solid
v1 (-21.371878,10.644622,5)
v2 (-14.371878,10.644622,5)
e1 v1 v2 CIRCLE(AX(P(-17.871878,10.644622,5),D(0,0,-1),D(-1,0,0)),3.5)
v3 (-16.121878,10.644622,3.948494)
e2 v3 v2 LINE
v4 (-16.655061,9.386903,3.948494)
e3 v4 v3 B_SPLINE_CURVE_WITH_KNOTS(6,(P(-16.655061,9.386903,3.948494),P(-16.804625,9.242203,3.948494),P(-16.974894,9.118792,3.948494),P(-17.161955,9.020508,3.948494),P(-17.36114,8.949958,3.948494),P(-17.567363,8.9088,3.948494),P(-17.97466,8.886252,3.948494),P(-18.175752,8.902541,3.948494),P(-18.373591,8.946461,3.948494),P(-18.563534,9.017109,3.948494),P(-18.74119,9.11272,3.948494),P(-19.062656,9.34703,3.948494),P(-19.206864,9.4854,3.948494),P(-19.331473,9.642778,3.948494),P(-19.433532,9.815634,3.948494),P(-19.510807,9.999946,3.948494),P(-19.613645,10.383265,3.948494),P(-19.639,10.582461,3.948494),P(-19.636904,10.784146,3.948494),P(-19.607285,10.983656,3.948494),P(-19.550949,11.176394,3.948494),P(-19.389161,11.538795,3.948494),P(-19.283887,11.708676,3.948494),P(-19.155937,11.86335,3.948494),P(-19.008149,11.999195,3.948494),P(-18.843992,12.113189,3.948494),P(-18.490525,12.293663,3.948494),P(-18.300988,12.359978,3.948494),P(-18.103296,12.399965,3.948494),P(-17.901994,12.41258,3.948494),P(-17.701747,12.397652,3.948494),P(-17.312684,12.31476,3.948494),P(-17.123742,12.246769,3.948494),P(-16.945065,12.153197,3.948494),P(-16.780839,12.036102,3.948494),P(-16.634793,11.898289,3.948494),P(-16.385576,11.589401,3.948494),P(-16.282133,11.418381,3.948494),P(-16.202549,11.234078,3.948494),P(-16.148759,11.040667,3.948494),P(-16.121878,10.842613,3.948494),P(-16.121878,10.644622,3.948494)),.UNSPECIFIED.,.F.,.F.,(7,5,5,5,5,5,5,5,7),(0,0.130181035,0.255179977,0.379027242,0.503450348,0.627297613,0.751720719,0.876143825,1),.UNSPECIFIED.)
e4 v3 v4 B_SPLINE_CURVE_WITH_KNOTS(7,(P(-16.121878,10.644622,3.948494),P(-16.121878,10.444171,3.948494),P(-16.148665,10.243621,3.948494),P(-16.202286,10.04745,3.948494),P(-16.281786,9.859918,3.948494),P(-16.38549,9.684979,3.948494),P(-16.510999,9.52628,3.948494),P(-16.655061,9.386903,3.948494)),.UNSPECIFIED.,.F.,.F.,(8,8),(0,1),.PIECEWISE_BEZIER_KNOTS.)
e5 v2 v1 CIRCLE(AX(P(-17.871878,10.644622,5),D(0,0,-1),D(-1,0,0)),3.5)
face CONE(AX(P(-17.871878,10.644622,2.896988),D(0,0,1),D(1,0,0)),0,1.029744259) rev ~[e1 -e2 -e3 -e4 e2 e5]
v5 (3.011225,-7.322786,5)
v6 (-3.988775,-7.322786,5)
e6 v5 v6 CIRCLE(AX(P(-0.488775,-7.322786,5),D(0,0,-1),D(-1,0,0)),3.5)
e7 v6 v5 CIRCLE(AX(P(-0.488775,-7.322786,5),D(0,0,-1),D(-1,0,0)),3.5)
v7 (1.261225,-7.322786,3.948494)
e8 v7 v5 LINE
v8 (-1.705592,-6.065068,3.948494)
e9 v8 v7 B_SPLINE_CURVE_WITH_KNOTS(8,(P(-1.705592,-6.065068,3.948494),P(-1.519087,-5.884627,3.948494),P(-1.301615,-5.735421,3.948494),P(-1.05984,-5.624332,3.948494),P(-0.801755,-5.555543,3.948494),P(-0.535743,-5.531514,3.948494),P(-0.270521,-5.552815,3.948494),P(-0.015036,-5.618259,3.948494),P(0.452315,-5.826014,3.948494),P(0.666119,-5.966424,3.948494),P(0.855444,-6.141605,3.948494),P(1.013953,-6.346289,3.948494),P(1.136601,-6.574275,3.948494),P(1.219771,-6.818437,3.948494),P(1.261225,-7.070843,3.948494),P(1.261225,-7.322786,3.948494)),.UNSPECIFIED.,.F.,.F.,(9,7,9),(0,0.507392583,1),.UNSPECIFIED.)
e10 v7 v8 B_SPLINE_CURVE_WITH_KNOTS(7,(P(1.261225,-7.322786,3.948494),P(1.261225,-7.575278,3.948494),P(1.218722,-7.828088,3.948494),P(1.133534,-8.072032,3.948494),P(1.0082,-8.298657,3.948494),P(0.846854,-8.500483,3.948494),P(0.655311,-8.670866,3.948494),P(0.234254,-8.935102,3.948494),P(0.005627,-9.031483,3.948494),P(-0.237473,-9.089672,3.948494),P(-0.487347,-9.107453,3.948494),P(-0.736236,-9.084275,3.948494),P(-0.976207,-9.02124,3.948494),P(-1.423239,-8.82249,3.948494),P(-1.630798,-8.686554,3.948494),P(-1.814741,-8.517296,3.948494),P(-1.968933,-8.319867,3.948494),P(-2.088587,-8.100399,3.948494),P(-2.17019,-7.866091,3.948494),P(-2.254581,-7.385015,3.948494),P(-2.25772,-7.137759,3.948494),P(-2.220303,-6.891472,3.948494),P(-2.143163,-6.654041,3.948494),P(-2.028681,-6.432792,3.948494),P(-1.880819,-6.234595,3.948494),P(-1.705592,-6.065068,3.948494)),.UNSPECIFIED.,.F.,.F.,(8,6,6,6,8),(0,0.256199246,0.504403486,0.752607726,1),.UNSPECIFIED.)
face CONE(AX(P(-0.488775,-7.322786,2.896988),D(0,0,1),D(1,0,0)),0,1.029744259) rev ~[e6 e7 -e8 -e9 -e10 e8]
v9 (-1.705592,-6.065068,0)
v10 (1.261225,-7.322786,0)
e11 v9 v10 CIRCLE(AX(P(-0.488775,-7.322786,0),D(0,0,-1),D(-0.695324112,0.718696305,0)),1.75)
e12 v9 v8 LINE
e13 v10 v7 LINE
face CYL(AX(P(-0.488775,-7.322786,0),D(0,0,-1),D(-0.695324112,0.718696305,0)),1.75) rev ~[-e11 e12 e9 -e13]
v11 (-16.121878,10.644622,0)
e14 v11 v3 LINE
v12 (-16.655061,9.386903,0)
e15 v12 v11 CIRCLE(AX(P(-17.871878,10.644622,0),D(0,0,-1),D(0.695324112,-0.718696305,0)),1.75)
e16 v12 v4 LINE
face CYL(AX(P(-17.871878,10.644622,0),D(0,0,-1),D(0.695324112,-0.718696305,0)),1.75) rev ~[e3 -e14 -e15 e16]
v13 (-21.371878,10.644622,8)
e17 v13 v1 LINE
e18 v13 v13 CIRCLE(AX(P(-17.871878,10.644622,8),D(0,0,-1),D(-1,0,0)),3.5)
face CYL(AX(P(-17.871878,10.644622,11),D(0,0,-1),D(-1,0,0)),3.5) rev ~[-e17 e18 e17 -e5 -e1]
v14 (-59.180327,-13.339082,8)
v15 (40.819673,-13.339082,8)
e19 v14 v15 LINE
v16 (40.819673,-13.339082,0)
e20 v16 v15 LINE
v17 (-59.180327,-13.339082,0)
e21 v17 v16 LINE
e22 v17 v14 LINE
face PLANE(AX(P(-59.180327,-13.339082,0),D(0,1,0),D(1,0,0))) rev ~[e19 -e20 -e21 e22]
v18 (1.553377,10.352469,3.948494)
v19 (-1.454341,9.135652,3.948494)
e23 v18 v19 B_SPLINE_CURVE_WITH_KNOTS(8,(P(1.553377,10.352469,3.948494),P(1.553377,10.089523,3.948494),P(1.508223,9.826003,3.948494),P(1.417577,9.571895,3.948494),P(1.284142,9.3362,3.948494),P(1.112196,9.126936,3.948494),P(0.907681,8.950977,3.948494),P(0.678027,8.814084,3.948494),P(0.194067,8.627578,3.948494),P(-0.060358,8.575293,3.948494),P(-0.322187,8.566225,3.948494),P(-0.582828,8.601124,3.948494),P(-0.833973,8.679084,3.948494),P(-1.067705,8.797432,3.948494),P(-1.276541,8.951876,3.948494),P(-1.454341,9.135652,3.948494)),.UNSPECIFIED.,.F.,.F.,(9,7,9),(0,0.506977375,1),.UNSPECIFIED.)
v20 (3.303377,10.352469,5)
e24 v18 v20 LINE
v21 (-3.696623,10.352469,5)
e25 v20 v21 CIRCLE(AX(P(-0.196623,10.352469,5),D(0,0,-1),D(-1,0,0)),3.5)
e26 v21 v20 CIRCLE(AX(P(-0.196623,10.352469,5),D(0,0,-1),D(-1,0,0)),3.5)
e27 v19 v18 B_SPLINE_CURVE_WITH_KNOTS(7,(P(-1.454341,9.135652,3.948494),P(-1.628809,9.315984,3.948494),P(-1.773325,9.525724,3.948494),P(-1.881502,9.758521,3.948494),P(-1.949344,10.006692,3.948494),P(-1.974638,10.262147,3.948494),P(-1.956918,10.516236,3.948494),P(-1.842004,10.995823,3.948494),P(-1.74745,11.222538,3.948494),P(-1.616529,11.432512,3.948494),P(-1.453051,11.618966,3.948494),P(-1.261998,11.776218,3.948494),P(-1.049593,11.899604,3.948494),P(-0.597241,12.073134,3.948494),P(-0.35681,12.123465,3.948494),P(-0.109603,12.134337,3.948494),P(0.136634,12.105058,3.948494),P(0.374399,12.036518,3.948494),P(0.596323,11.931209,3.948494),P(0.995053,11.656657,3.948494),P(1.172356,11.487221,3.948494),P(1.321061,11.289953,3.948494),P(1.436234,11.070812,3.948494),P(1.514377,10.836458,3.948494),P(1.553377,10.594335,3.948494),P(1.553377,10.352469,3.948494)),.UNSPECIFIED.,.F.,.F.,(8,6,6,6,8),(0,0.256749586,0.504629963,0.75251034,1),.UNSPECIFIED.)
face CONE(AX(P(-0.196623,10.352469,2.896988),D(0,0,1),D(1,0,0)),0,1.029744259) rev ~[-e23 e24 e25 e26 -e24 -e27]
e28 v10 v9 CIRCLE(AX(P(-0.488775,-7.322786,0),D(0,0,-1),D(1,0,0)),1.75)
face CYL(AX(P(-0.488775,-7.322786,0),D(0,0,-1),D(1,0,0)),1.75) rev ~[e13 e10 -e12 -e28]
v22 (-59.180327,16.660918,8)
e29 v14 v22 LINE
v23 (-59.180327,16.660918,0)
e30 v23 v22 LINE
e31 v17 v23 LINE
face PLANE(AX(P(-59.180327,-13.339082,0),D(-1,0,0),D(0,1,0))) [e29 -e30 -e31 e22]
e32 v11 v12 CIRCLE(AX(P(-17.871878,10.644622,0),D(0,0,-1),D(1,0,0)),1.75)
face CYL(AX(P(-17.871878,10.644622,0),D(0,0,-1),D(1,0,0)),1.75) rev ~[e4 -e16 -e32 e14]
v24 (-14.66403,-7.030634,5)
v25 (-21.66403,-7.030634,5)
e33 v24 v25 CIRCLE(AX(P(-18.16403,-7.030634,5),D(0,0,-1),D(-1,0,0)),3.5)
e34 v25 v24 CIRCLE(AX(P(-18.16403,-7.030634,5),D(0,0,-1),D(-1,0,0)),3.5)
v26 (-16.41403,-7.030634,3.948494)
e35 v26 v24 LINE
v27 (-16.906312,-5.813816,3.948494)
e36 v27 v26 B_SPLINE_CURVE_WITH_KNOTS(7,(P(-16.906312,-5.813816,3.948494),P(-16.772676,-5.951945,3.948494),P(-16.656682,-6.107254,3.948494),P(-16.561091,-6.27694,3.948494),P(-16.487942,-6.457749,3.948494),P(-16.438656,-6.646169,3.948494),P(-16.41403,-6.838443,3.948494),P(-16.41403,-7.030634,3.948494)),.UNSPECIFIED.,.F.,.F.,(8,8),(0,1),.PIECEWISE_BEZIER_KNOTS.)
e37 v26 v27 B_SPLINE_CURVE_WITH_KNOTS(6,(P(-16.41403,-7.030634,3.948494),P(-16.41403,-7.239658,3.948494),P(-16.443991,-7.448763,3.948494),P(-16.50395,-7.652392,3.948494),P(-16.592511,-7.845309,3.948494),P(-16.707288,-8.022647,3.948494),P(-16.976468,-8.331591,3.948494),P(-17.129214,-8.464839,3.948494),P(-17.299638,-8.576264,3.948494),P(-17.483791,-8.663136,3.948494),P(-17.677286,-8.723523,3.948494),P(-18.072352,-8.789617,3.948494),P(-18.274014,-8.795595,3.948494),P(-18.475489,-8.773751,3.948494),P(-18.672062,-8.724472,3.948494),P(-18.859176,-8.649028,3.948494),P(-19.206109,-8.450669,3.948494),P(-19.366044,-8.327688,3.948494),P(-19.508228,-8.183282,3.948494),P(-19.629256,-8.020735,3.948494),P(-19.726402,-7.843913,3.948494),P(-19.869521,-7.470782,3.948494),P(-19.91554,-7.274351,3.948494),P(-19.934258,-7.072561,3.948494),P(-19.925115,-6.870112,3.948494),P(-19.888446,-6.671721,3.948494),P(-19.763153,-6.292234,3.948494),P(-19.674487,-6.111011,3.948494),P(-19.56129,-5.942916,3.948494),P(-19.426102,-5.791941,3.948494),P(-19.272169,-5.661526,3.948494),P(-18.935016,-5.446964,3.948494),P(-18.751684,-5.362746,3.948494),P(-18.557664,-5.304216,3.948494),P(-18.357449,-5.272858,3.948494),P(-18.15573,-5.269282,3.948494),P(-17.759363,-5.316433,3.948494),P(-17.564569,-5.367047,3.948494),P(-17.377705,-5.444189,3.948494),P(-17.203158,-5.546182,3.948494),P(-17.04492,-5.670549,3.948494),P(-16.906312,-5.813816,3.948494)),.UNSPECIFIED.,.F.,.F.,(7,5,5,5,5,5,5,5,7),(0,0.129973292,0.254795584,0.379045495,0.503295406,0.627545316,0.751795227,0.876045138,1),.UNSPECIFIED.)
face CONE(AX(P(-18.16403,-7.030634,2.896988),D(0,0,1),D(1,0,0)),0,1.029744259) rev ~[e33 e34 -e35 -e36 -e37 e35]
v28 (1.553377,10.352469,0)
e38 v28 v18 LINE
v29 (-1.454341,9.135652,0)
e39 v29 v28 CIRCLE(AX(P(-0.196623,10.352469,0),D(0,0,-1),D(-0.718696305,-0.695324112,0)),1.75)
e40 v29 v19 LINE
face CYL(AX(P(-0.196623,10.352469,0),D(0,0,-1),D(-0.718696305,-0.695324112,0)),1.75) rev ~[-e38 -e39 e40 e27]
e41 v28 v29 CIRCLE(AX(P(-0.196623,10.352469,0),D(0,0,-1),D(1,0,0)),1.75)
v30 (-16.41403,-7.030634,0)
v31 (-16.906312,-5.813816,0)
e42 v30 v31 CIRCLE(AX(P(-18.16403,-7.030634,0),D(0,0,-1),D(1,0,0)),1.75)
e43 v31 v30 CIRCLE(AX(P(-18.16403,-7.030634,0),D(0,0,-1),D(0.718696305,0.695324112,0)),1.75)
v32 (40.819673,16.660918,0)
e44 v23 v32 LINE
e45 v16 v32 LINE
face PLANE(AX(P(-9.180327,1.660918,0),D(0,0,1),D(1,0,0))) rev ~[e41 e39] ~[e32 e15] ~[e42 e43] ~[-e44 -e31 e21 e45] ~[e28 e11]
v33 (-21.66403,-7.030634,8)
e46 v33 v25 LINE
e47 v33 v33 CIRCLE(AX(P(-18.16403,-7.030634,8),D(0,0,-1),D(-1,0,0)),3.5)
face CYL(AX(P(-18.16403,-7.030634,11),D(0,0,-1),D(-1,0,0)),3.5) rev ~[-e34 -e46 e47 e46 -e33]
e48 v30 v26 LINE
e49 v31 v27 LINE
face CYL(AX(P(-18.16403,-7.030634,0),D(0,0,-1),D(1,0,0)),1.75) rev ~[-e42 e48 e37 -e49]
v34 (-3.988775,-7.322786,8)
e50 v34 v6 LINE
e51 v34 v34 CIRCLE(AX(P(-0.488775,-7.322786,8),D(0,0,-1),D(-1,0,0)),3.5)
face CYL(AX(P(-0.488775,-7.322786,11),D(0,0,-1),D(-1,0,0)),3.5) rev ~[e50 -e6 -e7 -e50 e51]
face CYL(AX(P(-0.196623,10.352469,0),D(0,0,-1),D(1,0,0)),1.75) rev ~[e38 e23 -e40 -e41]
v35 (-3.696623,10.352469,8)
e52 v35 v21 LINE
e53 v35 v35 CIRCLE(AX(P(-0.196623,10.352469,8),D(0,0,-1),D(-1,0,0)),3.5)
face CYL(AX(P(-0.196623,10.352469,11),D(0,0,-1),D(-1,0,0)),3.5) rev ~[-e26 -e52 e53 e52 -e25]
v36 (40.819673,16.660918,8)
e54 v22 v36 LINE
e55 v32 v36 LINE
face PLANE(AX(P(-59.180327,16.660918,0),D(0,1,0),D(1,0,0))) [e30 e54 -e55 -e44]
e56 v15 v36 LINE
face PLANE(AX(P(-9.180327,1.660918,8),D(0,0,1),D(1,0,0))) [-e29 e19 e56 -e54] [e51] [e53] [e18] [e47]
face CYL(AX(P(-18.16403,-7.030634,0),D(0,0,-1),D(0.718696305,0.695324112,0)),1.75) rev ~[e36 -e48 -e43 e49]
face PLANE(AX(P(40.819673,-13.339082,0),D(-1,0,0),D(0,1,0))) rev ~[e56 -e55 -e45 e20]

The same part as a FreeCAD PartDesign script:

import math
import FreeCAD as App
import Part
import Sketcher
from FreeCAD import Vector
Q = App.Units.Quantity


def add_polygon(sketch, points):
    """Adds a closed chain of lines whose ends are joined by coincident constraints."""
    first, n = sketch.GeometryCount, len(points)
    for a, b in zip(points, points[1:] + points[:1]):
        sketch.addGeometry(Part.LineSegment(App.Vector(*a, 0), App.Vector(*b, 0)), False)
    for i in range(n):
        sketch.addConstraint(Sketcher.Constraint("Coincident", first + i, 2, first + (i + 1) % n, 1))

doc = App.newDocument("Part")
body = doc.addObject("PartDesign::Body", "Body")

# Sketch on XY plane
sketch1 = doc.addObject("Sketcher::SketchObject", "Sketch")
body.addObject(sketch1)
sketch1.AttachmentSupport = (doc.XY_Plane, [""])
sketch1.MapMode = "FlatFace"
add_polygon(sketch1, [(-59.2, 16.7), (-59.2, -13.3), (40.8, -13.3), (40.8, 16.7)])  # lines 0-3
sketch1.addGeometry(Part.ArcOfCircle(Part.Circle(Vector(-18.2, -7, 0), Vector(0, 0, 1), 1.8), math.radians(0), math.radians(44)), False)  # 4
sketch1.addGeometry(Part.ArcOfCircle(Part.Circle(Vector(-18.2, -7, 0), Vector(0, 0, 1), 1.8), math.radians(44), math.radians(360)), False)  # 5
sketch1.addGeometry(Part.ArcOfCircle(Part.Circle(Vector(-0.5, -7.3, 0), Vector(0, 0, 1), 1.8), math.radians(0), math.radians(134)), False)  # 6
sketch1.addGeometry(Part.ArcOfCircle(Part.Circle(Vector(-0.5, -7.3, 0), Vector(0, 0, 1), 1.8), math.radians(134), math.radians(360)), False)  # 7
sketch1.addGeometry(Part.ArcOfCircle(Part.Circle(Vector(-17.9, 10.6, 0), Vector(0, 0, 1), 1.7), math.radians(-46), math.radians(0)), False)  # 8
sketch1.addGeometry(Part.ArcOfCircle(Part.Circle(Vector(-17.9, 10.6, 0), Vector(0, 0, 1), 1.8), math.radians(0), math.radians(314)), False)  # 9
sketch1.addGeometry(Part.ArcOfCircle(Part.Circle(Vector(-0.2, 10.4, 0), Vector(0, 0, 1), 1.8), math.radians(0), math.radians(224)), False)  # 10
sketch1.addGeometry(Part.ArcOfCircle(Part.Circle(Vector(-0.2, 10.4, 0), Vector(0, 0, 1), 1.8), math.radians(-136), math.radians(0)), False)  # 11
sketch1.addConstraint(Sketcher.Constraint("Tangent", 4, 1, 5, 2))
sketch1.addConstraint(Sketcher.Constraint("Coincident", 5, 1, 4, 2))
sketch1.addConstraint(Sketcher.Constraint("Tangent", 6, 1, 7, 2))
sketch1.addConstraint(Sketcher.Constraint("Coincident", 7, 1, 6, 2))
sketch1.addConstraint(Sketcher.Constraint("Tangent", 8, 1, 9, 2))
sketch1.addConstraint(Sketcher.Constraint("Coincident", 9, 1, 8, 2))
sketch1.addConstraint(Sketcher.Constraint("Tangent", 10, 1, 11, 2))
sketch1.addConstraint(Sketcher.Constraint("Coincident", 11, 1, 10, 2))
sketch1.addConstraint(Sketcher.Constraint("Vertical", 0))
sketch1.addConstraint(Sketcher.Constraint("Horizontal", 1))
sketch1.addConstraint(Sketcher.Constraint("Vertical", 2))
sketch1.addConstraint(Sketcher.Constraint("Horizontal", 3))
sketch1.addConstraint(Sketcher.Constraint("Equal", 5, 6))
sketch1.addConstraint(Sketcher.Constraint("Equal", 7, 8))
sketch1.addConstraint(Sketcher.Constraint("Equal", 9, 10))
sketch1.addConstraint(Sketcher.Constraint("Horizontal", 5, 3, 4, 1))
sketch1.addConstraint(Sketcher.Constraint("Horizontal", 7, 3, 6, 1))
sketch1.addConstraint(Sketcher.Constraint("Horizontal", 8, 3, 9, 1))
sketch1.addConstraint(Sketcher.Constraint("Horizontal", 11, 3, 10, 1))
sketch1.addConstraint(Sketcher.Constraint("DistanceX", 1, 1, 1, 2, Q("100 mm")))
sketch1.addConstraint(Sketcher.Constraint("DistanceY", 0, 2, 0, 1, Q("30 mm")))
sketch1.addConstraint(Sketcher.Constraint("Radius", 4, Q("1.75 mm")))
sketch1.addConstraint(Sketcher.Constraint("DistanceX", 4, 3, -1, 1, Q("18.16403 mm")))
sketch1.addConstraint(Sketcher.Constraint("DistanceX", 8, 3, -1, 1, Q("17.871878 mm")))
sketch1.addConstraint(Sketcher.Constraint("DistanceY", -1, 1, 8, 3, Q("10.644622 mm")))
sketch1.addConstraint(Sketcher.Constraint("DistanceY", -1, 1, 10, 3, Q("10.352469 mm")))
sketch1.addConstraint(Sketcher.Constraint("DistanceX", 5, 1, -1, 1, Q("16.906312 mm")))
sketch1.addConstraint(Sketcher.Constraint("DistanceX", 8, 1, -1, 1, Q("16.655061 mm")))
sketch1.addConstraint(Sketcher.Constraint("DistanceX", 11, 1, -1, 1, Q("1.454341 mm")))
sketch1.addConstraint(Sketcher.Constraint("DistanceY", -1, 1, 11, 1, Q("9.135652 mm")))
sketch1.addConstraint(Sketcher.Constraint("DistanceY", 0, 2, 4, 3, Q("6.308449 mm")))
sketch1.addConstraint(Sketcher.Constraint("DistanceX", 0, 2, 9, 3, Q("41.308449 mm")))
sketch1.addConstraint(Sketcher.Constraint("DistanceX", 0, 2, 6, 3, Q("58.691551 mm")))
sketch1.addConstraint(Sketcher.Constraint("DistanceY", 1, 2, 10, 3, Q("23.691551 mm")))
sketch1.addConstraint(Sketcher.Constraint("DistanceY", 6, 3, 7, 1, Q("1.257719 mm")))
sketch1.addConstraint(Sketcher.Constraint("DistanceY", 7, 1, 5, 1, Q("0.251251 mm")))
pad1 = doc.addObject("PartDesign::Pad", "Pad")
body.addObject(pad1)
pad1.Profile = sketch1
pad1.Length = 8

# Sketch on XY plane
sketch2 = doc.addObject("Sketcher::SketchObject", "Sketch001")
body.addObject(sketch2)
sketch2.AttachmentSupport = (doc.XY_Plane, [""])
sketch2.MapMode = "FlatFace"
sketch2.AttachmentOffset = App.Placement(Vector(0, 0, 8), App.Rotation())
sketch2.addGeometry(Part.Circle(Vector(-0.5, -7.3, 0), Vector(0, 0, 1), 3.5), False)
sketch2.addGeometry(Part.Circle(Vector(-18.2, -7, 0), Vector(0, 0, 1), 3.5), False)
sketch2.addGeometry(Part.Circle(Vector(-17.9, 10.6, 0), Vector(0, 0, 1), 3.5), False)
sketch2.addGeometry(Part.Circle(Vector(-0.2, 10.4, 0), Vector(0, 0, 1), 3.5), False)
sketch2.addConstraint(Sketcher.Constraint("Equal", 0, 1))
sketch2.addConstraint(Sketcher.Constraint("Equal", 1, 2))
sketch2.addConstraint(Sketcher.Constraint("Equal", 2, 3))
sketch2.addConstraint(Sketcher.Constraint("Diameter", 0, Q("7 mm")))
sketch2.addConstraint(Sketcher.Constraint("DistanceX", 1, 3, -1, 1, Q("18.16403 mm")))
sketch2.addConstraint(Sketcher.Constraint("DistanceX", 2, 3, -1, 1, Q("17.871878 mm")))
sketch2.addConstraint(Sketcher.Constraint("DistanceY", -1, 1, 2, 3, Q("10.644622 mm")))
sketch2.addConstraint(Sketcher.Constraint("DistanceY", -1, 1, 3, 3, Q("10.352469 mm")))
sketch2.addConstraint(Sketcher.Constraint("DistanceX", 0, 3, -1, 1, Q("0.488775 mm")))
sketch2.addConstraint(Sketcher.Constraint("DistanceY", 0, 3, -1, 1, Q("7.322786 mm")))
sketch2.addConstraint(Sketcher.Constraint("DistanceY", 1, 3, -1, 1, Q("7.030634 mm")))
sketch2.addConstraint(Sketcher.Constraint("DistanceX", 3, 3, -1, 1, Q("0.196623 mm")))
doc.recompute()
hole = doc.addObject("PartDesign::Hole", "Hole")
body.addObject(hole)
hole.Profile = sketch2
hole.ThreadType = "None"
hole.Diameter = 7
hole.DepthType = "Dimension"
hole.Depth = 3
hole.DrillPoint = "Angled"
hole.DrillPointAngle = 118

doc.recompute()
